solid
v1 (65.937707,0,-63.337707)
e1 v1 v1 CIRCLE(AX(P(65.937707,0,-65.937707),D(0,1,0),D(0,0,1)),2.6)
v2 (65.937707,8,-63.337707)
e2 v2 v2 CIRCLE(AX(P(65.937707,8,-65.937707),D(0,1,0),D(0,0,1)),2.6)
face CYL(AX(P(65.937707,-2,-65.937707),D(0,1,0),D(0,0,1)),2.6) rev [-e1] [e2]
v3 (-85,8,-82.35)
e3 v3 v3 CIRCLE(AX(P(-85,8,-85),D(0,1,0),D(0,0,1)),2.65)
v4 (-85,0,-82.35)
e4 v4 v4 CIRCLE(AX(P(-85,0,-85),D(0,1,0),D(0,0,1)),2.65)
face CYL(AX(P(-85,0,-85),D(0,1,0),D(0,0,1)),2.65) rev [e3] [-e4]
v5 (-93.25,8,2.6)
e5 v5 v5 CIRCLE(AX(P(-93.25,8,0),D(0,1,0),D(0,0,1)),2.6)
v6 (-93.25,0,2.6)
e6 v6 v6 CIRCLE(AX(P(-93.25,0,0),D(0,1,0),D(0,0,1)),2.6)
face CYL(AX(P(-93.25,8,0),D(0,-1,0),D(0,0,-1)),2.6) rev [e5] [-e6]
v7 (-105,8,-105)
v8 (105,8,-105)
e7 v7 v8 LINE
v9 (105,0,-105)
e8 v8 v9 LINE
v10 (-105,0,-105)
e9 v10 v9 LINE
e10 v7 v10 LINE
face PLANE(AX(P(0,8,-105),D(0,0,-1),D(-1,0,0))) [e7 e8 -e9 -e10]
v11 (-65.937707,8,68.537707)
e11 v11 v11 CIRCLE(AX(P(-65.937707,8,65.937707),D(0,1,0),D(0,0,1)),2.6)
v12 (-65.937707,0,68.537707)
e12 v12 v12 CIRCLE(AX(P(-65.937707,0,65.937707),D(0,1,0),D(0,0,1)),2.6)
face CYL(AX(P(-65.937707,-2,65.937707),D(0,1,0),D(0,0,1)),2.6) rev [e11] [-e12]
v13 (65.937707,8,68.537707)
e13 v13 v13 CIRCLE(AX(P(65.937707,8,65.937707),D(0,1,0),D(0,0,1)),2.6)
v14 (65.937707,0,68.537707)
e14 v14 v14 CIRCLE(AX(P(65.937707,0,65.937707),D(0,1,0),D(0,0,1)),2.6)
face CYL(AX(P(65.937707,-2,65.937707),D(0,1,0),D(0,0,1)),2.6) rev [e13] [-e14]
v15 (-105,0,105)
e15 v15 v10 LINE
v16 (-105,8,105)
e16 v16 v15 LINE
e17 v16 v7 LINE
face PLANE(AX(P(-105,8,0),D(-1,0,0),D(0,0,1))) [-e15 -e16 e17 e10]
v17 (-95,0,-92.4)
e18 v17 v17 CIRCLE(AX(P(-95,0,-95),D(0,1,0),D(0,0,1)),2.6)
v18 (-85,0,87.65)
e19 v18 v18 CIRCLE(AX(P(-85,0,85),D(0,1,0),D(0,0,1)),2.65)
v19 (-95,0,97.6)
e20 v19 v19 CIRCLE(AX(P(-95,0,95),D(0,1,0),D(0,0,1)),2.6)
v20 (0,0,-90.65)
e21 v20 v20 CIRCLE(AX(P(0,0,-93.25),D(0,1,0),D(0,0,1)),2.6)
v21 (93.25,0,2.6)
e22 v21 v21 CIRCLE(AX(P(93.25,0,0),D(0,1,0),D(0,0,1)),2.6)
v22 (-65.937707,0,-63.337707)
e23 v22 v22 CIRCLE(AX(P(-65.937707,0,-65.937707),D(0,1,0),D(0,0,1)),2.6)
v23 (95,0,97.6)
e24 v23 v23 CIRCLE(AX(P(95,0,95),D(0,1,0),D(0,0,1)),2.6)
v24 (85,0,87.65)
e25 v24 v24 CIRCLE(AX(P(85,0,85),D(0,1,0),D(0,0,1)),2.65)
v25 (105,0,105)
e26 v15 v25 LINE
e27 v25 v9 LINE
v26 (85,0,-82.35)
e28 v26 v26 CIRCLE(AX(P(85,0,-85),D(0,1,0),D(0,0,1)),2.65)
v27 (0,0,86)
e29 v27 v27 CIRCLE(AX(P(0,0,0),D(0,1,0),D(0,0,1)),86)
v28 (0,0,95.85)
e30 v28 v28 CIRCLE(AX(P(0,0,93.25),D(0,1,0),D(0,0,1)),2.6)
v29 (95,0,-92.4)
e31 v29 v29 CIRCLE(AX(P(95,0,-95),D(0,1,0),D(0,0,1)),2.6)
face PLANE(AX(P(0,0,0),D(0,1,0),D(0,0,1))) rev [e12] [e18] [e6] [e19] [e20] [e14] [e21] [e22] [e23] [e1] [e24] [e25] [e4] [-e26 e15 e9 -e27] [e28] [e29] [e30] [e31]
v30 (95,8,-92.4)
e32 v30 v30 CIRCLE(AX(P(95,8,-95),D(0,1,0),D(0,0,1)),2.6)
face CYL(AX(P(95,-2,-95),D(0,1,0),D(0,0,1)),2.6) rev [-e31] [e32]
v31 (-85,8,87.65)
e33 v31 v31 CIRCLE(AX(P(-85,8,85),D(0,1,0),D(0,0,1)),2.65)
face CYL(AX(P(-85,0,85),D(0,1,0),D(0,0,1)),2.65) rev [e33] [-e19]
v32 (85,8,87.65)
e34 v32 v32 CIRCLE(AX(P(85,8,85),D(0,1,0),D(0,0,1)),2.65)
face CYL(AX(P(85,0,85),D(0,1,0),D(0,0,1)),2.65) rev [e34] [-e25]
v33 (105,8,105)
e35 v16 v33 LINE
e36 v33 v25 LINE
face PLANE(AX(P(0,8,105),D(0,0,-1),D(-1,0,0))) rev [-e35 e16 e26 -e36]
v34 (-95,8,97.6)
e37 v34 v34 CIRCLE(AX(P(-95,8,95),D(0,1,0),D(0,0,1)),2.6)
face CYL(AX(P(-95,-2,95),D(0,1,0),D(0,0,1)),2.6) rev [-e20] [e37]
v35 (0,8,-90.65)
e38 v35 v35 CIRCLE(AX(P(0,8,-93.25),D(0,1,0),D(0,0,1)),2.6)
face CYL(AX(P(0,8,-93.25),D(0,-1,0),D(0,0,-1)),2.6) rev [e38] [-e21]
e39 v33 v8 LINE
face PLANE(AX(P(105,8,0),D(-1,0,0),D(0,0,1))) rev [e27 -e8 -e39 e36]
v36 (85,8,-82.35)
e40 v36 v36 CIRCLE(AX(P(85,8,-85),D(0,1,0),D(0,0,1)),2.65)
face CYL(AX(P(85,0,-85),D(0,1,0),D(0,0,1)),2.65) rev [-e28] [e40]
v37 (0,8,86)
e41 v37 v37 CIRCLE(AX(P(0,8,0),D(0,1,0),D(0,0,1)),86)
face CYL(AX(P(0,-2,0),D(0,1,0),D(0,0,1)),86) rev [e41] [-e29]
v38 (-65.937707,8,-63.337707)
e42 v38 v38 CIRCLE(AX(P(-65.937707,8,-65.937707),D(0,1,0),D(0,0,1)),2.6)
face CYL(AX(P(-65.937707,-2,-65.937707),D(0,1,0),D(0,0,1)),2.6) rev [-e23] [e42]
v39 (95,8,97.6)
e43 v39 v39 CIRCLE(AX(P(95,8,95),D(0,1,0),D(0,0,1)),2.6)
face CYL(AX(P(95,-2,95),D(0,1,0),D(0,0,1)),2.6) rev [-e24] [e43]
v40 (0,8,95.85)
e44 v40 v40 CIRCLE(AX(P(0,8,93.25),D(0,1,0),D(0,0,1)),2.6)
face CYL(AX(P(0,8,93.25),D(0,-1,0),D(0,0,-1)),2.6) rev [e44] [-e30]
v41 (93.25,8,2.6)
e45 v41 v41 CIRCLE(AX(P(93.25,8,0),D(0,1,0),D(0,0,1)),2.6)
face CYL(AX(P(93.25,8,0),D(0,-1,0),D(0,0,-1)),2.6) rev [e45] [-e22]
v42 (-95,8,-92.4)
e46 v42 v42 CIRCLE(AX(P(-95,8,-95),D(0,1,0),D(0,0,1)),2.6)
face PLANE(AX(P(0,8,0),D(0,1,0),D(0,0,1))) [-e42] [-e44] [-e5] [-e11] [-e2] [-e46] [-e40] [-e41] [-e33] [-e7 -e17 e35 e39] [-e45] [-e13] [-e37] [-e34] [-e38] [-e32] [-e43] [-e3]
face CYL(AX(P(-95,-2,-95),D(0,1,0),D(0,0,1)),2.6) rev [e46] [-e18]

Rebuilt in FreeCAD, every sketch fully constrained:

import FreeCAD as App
import Part
import Sketcher

V = App.Vector
Q = App.Units.Quantity


def add_polygon(sketch, points):
    """Adds a closed chain of lines whose ends are joined by coincident constraints."""
    first, n = sketch.GeometryCount, len(points)
    for a, b in zip(points, points[1:] + points[:1]):
        sketch.addGeometry(Part.LineSegment(App.Vector(*a, 0), App.Vector(*b, 0)), False)
    for i in range(n):
        sketch.addConstraint(Sketcher.Constraint("Coincident", first + i, 2, first + (i + 1) % n, 1))

doc = App.newDocument("Part")
params = doc.addObject("Spreadsheet::Sheet", "Params")
for row, (alias, value) in enumerate([
    ("sketch1_diameter", "171 mm"),
    ("sketch1_diameter2", "5.2 mm"),
    ("sketch1_width", "210 mm"),
    ("pad1_length", "8 mm"),
    ("sketch2_diameter", "5.2 mm"),
    ("pocket1_length", "10 mm"),
    ("sketch3_diameter", "172 mm"),
    ("pocket2_length", "10 mm"),
    ("sketch4_diameter", "5.3 mm"),
], start=1):
    params.set(f"A{row}", alias)
    params.set(f"B{row}", "=" + value)
    params.setAlias(f"B{row}", alias)

body = doc.addObject("PartDesign::Body", "Body")

# Sketch on XZ plane
sketch1 = body.newObject("Sketcher::SketchObject", "Sketch")
sketch1.AttachmentSupport = (doc.getObject("XZ_Plane"), [""])
sketch1.MapMode = "FlatFace"
add_polygon(sketch1, [(-105, -105), (-105, 105), (105, 105), (105, -105)])  # lines 0-3
sketch1.addGeometry(Part.Circle(V(0, 93.2, 0), V(0, 0, 1), 2.6), False)  # 4
sketch1.addGeometry(Part.Circle(V(-93.2, 0, 0), V(0, 0, 1), 2.6), False)  # 5
sketch1.addGeometry(Part.Circle(V(0, 0, 0), V(0, 0, 1), 85.5), False)  # 6
sketch1.addGeometry(Part.Circle(V(93.2, 0, 0), V(0, 0, 1), 2.6), False)  # 7
sketch1.addGeometry(Part.Circle(V(0, -93.2, 0), V(0, 0, 1), 2.6), False)  # 8
sketch1.addConstraint(Sketcher.Constraint("Vertical", 0))
sketch1.addConstraint(Sketcher.Constraint("Horizontal", 1))
sketch1.addConstraint(Sketcher.Constraint("Vertical", 2))
sketch1.addConstraint(Sketcher.Constraint("Horizontal", 3))
sketch1.addConstraint(Sketcher.Constraint("Coincident", 6, 3, -1, 1))
sketch1.addConstraint(Sketcher.Constraint("Equal", 4, 5))
sketch1.addConstraint(Sketcher.Constraint("Equal", 5, 7))
sketch1.addConstraint(Sketcher.Constraint("Equal", 7, 8))
sketch1.addConstraint(Sketcher.Constraint("Symmetric", 5, 3, 7, 3, -1, 1))
sketch1.addConstraint(Sketcher.Constraint("Symmetric", 4, 3, 8, 3, -1, 1))
sketch1.addConstraint(Sketcher.Constraint("Symmetric", 0, 2, 2, 2, -1, 1))
sketch1.addConstraint(Sketcher.Constraint("PointOnObject", 4, 3, -2))
sketch1.addConstraint(Sketcher.Constraint("PointOnObject", 5, 3, -1))
sketch1.addConstraint(Sketcher.Constraint("Equal", 3, 0))
sketch1.addConstraint(Sketcher.Constraint("Diameter", 6, Q("171 mm")))
sketch1.addConstraint(Sketcher.Constraint("Diameter", 4, Q("5.2 mm")))
sketch1.addConstraint(Sketcher.Constraint("DistanceX", 1, 1, 1, 2, Q("210 mm")))
sketch1.addConstraint(Sketcher.Constraint("DistanceX", 5, 3, 7, 3, Q("186.5 mm")))
sketch1.addConstraint(Sketcher.Constraint("DistanceY", 8, 3, 4, 3, Q("186.5 mm")))
sketch1.setExpression("Constraints[18]", "Params.sketch1_diameter")
sketch1.setExpression("Constraints[19]", "Params.sketch1_diameter2")
sketch1.setExpression("Constraints[20]", "Params.sketch1_width")
pad1 = body.newObject("PartDesign::Pad", "Pad")
pad1.Profile = sketch1
pad1.setExpression("Length", "Params.pad1_length")
pad1.Reversed = True

# Sketch on XZ plane
sketch2 = body.newObject("Sketcher::SketchObject", "Sketch001")
sketch2.AttachmentSupport = (doc.getObject("XZ_Plane"), [""])
sketch2.MapMode = "FlatFace"
sketch2.AttachmentOffset = App.Placement(V(0, 0, -8), App.Rotation())
sketch2.addGeometry(Part.Circle(V(65.9, 65.9, 0), V(0, 0, 1), 2.6), False)
sketch2.addGeometry(Part.Circle(V(95, -95, 0), V(0, 0, 1), 2.6), False)
sketch2.addGeometry(Part.Circle(V(-65.9, -65.9, 0), V(0, 0, 1), 2.6), False)
sketch2.addGeometry(Part.Circle(V(65.9, -65.9, 0), V(0, 0, 1), 2.6), False)
sketch2.addGeometry(Part.Circle(V(-65.9, 65.9, 0), V(0, 0, 1), 2.6), False)
sketch2.addGeometry(Part.Circle(V(95, 95, 0), V(0, 0, 1), 2.6), False)
sketch2.addGeometry(Part.Circle(V(-95, 95, 0), V(0, 0, 1), 2.6), False)
sketch2.addGeometry(Part.Circle(V(-95, -95, 0), V(0, 0, 1), 2.6), False)
sketch2.addConstraint(Sketcher.Constraint("Equal", 0, 1))
sketch2.addConstraint(Sketcher.Constraint("Equal", 1, 2))
sketch2.addConstraint(Sketcher.Constraint("Equal", 2, 3))
sketch2.addConstraint(Sketcher.Constraint("Equal", 3, 4))
sketch2.addConstraint(Sketcher.Constraint("Equal", 4, 5))
sketch2.addConstraint(Sketcher.Constraint("Equal", 5, 6))
sketch2.addConstraint(Sketcher.Constraint("Equal", 6, 7))
sketch2.addConstraint(Sketcher.Constraint("Symmetric", 0, 3, 2, 3, -1, 1))
sketch2.addConstraint(Sketcher.Constraint("Symmetric", 3, 3, 4, 3, -1, 1))
sketch2.addConstraint(Sketcher.Constraint("Symmetric", 1, 3, 6, 3, -1, 1))
sketch2.addConstraint(Sketcher.Constraint("Symmetric", 5, 3, 7, 3, -1, 1))
sketch2.addConstraint(Sketcher.Constraint("Symmetric", 2, 3, 3, 3, -2))
sketch2.addConstraint(Sketcher.Constraint("Symmetric", 5, 3, 6, 3, -2))
sketch2.addConstraint(Sketcher.Constraint("Diameter", 0, Q("5.2 mm")))
sketch2.addConstraint(Sketcher.Constraint("DistanceX", -1, 1, 1, 3, Q("95 mm")))
sketch2.addConstraint(Sketcher.Constraint("DistanceY", 1, 3, -1, 1, Q("95 mm")))
sketch2.addConstraint(Sketcher.Constraint("DistanceX", -1, 1, 0, 3, Q("65.937707 mm")))
sketch2.addConstraint(Sketcher.Constraint("DistanceY", -1, 1, 0, 3, Q("65.937707 mm")))
sketch2.setExpression("Constraints[13]", "Params.sketch2_diameter")
pocket1 = body.newObject("PartDesign::Pocket", "Pocket")
pocket1.Profile = sketch2
pocket1.setExpression("Length", "Params.pocket1_length")
pocket1.Reversed = True

# Sketch on XZ plane
sketch3 = body.newObject("Sketcher::SketchObject", "Sketch002")
sketch3.AttachmentSupport = (doc.getObject("XZ_Plane"), [""])
sketch3.MapMode = "FlatFace"
sketch3.AttachmentOffset = App.Placement(V(0, 0, -8), App.Rotation())
sketch3.addGeometry(Part.Circle(V(0, 0, 0), V(0, 0, 1), 86), False)
sketch3.addConstraint(Sketcher.Constraint("Coincident", 0, 3, -1, 1))
sketch3.addConstraint(Sketcher.Constraint("Diameter", 0, Q("172 mm")))
sketch3.setExpression("Constraints[1]", "Params.sketch3_diameter")
pocket2 = body.newObject("PartDesign::Pocket", "Pocket001")
pocket2.Profile = sketch3
pocket2.setExpression("Length", "Params.pocket2_length")
pocket2.Reversed = True

# Sketch on XZ plane
sketch4 = body.newObject("Sketcher::SketchObject", "Sketch003")
sketch4.AttachmentSupport = (doc.getObject("XZ_Plane"), [""])
sketch4.MapMode = "FlatFace"
sketch4.AttachmentOffset = App.Placement(V(0, 0, -8), App.Rotation())
sketch4.addGeometry(Part.Circle(V(85, -85, 0), V(0, 0, 1), 2.6), False)
sketch4.addGeometry(Part.Circle(V(-85, 85, 0), V(0, 0, 1), 2.6), False)
sketch4.addGeometry(Part.Circle(V(-85, -85, 0), V(0, 0, 1), 2.6), False)
sketch4.addGeometry(Part.Circle(V(85, 85, 0), V(0, 0, 1), 2.6), False)
sketch4.addConstraint(Sketcher.Constraint("Equal", 0, 1))
sketch4.addConstraint(Sketcher.Constraint("Equal", 1, 2))
sketch4.addConstraint(Sketcher.Constraint("Equal", 2, 3))
sketch4.addConstraint(Sketcher.Constraint("Symmetric", 0, 3, 1, 3, -1, 1))
sketch4.addConstraint(Sketcher.Constraint("Symmetric", 2, 3, 3, 3, -1, 1))
sketch4.addConstraint(Sketcher.Constraint("Symmetric", 0, 3, 2, 3, -2))
sketch4.addConstraint(Sketcher.Constraint("Diameter", 0, Q("5.3 mm")))
sketch4.addConstraint(Sketcher.Constraint("DistanceX", -1, 1, 0, 3, Q("85 mm")))
sketch4.addConstraint(Sketcher.Constraint("DistanceY", 0, 3, -1, 1, Q("85 mm")))
sketch4.setExpression("Constraints[6]", "Params.sketch4_diameter")
pocket3 = body.newObject("PartDesign::Pocket", "Pocket002")
pocket3.Profile = sketch4
pocket3.Type = "ThroughAll"
pocket3.Reversed = True

doc.recompute()
